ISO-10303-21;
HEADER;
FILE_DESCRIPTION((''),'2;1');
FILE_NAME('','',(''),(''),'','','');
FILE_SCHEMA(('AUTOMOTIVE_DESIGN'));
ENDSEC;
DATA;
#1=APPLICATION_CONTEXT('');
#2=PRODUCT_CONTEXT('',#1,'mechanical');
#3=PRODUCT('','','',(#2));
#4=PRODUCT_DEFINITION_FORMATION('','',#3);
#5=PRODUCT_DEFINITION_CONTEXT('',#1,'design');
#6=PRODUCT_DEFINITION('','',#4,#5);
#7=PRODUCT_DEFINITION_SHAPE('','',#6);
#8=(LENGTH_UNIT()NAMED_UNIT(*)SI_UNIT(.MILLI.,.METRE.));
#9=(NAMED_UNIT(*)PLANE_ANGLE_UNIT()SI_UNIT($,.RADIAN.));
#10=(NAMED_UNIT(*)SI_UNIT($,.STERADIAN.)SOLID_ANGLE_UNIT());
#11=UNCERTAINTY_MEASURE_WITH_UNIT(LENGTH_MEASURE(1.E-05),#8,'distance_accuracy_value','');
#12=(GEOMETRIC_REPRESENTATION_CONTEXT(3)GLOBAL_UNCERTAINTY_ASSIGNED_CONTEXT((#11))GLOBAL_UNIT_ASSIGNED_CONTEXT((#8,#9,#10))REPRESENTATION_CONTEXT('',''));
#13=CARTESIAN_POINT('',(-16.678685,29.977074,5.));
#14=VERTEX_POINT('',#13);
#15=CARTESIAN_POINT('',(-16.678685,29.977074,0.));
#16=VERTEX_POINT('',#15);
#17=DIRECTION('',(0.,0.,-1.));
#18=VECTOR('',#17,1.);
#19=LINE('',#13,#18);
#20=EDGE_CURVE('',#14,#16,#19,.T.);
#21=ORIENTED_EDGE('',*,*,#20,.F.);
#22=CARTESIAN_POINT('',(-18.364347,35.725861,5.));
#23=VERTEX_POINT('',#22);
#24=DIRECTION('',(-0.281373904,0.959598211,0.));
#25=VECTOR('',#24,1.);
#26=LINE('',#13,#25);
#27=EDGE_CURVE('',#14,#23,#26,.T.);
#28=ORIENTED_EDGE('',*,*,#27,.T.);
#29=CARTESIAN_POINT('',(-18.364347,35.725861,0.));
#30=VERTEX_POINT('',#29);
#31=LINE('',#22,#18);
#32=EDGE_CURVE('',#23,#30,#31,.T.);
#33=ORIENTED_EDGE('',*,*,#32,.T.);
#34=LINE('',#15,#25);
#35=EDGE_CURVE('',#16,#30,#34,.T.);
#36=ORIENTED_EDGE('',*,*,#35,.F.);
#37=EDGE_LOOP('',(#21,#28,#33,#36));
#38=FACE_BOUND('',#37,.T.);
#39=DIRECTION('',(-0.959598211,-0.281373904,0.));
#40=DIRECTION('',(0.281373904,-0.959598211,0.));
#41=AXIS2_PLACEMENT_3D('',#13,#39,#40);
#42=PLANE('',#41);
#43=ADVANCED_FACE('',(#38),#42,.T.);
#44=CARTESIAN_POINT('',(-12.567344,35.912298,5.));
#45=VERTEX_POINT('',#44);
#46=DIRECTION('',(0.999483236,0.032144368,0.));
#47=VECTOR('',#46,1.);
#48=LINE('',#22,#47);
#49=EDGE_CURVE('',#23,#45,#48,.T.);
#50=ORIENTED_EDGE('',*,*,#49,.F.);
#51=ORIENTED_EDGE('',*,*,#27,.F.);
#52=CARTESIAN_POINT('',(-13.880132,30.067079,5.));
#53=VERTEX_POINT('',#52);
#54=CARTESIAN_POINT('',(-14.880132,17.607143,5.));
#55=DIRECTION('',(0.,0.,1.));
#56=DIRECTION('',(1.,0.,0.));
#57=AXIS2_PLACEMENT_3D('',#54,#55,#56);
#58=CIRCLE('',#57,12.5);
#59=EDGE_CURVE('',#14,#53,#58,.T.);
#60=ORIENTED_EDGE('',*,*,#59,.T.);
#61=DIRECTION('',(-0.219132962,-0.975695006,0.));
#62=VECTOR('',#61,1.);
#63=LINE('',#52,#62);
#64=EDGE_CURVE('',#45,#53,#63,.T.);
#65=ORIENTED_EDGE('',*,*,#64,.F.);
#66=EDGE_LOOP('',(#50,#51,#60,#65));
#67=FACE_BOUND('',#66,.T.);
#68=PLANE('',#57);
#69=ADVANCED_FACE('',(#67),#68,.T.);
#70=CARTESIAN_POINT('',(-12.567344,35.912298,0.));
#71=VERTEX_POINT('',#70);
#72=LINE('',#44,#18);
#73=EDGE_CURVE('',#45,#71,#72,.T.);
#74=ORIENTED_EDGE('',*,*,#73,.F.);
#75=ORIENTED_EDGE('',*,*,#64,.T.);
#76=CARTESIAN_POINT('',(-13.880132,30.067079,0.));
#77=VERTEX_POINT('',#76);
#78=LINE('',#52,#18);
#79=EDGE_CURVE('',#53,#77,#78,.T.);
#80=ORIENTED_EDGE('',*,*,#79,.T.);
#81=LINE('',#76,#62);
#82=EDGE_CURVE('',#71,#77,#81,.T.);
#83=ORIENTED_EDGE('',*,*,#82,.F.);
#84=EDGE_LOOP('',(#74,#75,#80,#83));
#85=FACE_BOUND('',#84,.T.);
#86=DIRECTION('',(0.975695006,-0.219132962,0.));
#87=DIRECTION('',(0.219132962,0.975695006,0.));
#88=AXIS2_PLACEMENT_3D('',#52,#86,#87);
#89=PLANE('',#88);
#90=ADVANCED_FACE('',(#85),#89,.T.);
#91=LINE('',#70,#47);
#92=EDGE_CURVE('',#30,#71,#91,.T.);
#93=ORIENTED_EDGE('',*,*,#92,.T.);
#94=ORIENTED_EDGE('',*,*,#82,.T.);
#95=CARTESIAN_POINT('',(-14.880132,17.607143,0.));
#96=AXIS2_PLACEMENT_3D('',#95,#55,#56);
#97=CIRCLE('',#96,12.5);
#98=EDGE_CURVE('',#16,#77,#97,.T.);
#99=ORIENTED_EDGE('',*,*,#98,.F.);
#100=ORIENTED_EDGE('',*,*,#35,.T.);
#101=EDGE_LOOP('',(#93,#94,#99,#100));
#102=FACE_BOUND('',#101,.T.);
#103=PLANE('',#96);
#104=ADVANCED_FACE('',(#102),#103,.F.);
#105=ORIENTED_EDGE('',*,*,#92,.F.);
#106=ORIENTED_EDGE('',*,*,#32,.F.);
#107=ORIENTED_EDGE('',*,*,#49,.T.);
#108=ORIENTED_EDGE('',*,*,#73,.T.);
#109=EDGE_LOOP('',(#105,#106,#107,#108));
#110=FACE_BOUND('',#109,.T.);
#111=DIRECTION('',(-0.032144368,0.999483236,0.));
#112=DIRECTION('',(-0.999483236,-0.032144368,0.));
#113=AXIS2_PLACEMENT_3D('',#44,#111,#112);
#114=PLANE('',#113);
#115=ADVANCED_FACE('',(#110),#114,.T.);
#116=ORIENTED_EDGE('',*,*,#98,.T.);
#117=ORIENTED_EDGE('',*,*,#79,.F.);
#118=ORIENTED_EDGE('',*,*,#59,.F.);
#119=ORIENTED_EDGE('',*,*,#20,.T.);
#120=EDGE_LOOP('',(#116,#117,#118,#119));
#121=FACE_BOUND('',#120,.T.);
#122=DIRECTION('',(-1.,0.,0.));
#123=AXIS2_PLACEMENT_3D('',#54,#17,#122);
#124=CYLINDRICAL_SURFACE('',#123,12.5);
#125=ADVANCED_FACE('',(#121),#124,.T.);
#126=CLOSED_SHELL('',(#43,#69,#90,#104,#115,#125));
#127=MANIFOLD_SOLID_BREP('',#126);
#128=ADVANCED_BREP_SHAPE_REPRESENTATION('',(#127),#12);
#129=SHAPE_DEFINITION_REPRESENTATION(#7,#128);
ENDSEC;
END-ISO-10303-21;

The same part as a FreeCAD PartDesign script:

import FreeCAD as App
import Part
import Sketcher
from FreeCAD import Vector
Q = App.Units.Quantity

doc = App.newDocument("Part")
body = doc.addObject("PartDesign::Body", "Body")

# Sketch on XY plane
sketch1 = body.newObject("Sketcher::SketchObject", "Sketch")
sketch1.AttachmentSupport = (doc.getObject("XY_Plane"), [""])
sketch1.MapMode = "FlatFace"
sketch1.addGeometry(Part.Circle(Vector(-15, 18, 0), Vector(0, 0, 1), 12), False)
sketch1.addConstraint([
    Sketcher.Constraint("Diameter", 0, Q("25 mm")),
    Sketcher.Constraint("DistanceX", 0, 3, -1, 1, Q("14.880132 mm")),
    Sketcher.Constraint("DistanceY", -1, 1, 0, 3, Q("17.607143 mm")),
])
pad1 = body.newObject("PartDesign::Pad", "Pad")
pad1.Profile = sketch1
pad1.Length = 5

# Sketch on XY plane
sketch2 = body.newObject("Sketcher::SketchObject", "Sketch001")
sketch2.AttachmentSupport = (doc.getObject("XY_Plane"), [""])
sketch2.MapMode = "FlatFace"
sketch2.addGeometry([
    Part.LineSegment(Vector(-13.9, 30.1, 0), Vector(-16.7, 30, 0)),  # 0
    Part.LineSegment(Vector(-16.7, 30, 0), Vector(-18.4, 35.7, 0)),  # 1
    Part.LineSegment(Vector(-18.4, 35.7, 0), Vector(-16.9, 35.8, 0)),  # 2
    Part.LineSegment(Vector(-16.9, 35.8, 0), Vector(-14.1, 35.9, 0)),  # 3
    Part.LineSegment(Vector(-14.1, 35.9, 0), Vector(-12.6, 35.9, 0)),  # 4
    Part.LineSegment(Vector(-12.6, 35.9, 0), Vector(-13.9, 30.1, 0)),  # 5
], False)
sketch2.addConstraint([
    Sketcher.Constraint("Coincident", 0, 2, 1, 1),
    Sketcher.Constraint("Coincident", 1, 2, 2, 1),
    Sketcher.Constraint("Coincident", 2, 2, 3, 1),
    Sketcher.Constraint("Coincident", 3, 2, 4, 1),
    Sketcher.Constraint("Coincident", 4, 2, 5, 1),
    Sketcher.Constraint("Coincident", 5, 2, 0, 1),
    Sketcher.Constraint("Parallel", 0, 2),
    Sketcher.Constraint("Parallel", 2, 3),
    Sketcher.Constraint("Parallel", 3, 4),
    Sketcher.Constraint("Equal", 0, 3),
    Sketcher.Constraint("Equal", 2, 4),
    Sketcher.Constraint("Equal", 1, 5),
    Sketcher.Constraint("Distance", 0, Q("2.8 mm")),
    Sketcher.Constraint("Distance", 2, Q("1.5 mm")),
    Sketcher.Constraint("DistanceY", 5, 2, 2, 2, Q("5.706999 mm")),
    Sketcher.Constraint("DistanceY", -1, 1, 1, 2, Q("35.725861 mm")),
    Sketcher.Constraint("DistanceX", 3, 2, -1, 1, Q("14.066569 mm")),
    Sketcher.Constraint("DistanceY", -1, 1, 3, 2, Q("35.864081 mm")),
])
pad2 = body.newObject("PartDesign::Pad", "Pad001")
pad2.Profile = sketch2
pad2.Length = 5

doc.recompute()
